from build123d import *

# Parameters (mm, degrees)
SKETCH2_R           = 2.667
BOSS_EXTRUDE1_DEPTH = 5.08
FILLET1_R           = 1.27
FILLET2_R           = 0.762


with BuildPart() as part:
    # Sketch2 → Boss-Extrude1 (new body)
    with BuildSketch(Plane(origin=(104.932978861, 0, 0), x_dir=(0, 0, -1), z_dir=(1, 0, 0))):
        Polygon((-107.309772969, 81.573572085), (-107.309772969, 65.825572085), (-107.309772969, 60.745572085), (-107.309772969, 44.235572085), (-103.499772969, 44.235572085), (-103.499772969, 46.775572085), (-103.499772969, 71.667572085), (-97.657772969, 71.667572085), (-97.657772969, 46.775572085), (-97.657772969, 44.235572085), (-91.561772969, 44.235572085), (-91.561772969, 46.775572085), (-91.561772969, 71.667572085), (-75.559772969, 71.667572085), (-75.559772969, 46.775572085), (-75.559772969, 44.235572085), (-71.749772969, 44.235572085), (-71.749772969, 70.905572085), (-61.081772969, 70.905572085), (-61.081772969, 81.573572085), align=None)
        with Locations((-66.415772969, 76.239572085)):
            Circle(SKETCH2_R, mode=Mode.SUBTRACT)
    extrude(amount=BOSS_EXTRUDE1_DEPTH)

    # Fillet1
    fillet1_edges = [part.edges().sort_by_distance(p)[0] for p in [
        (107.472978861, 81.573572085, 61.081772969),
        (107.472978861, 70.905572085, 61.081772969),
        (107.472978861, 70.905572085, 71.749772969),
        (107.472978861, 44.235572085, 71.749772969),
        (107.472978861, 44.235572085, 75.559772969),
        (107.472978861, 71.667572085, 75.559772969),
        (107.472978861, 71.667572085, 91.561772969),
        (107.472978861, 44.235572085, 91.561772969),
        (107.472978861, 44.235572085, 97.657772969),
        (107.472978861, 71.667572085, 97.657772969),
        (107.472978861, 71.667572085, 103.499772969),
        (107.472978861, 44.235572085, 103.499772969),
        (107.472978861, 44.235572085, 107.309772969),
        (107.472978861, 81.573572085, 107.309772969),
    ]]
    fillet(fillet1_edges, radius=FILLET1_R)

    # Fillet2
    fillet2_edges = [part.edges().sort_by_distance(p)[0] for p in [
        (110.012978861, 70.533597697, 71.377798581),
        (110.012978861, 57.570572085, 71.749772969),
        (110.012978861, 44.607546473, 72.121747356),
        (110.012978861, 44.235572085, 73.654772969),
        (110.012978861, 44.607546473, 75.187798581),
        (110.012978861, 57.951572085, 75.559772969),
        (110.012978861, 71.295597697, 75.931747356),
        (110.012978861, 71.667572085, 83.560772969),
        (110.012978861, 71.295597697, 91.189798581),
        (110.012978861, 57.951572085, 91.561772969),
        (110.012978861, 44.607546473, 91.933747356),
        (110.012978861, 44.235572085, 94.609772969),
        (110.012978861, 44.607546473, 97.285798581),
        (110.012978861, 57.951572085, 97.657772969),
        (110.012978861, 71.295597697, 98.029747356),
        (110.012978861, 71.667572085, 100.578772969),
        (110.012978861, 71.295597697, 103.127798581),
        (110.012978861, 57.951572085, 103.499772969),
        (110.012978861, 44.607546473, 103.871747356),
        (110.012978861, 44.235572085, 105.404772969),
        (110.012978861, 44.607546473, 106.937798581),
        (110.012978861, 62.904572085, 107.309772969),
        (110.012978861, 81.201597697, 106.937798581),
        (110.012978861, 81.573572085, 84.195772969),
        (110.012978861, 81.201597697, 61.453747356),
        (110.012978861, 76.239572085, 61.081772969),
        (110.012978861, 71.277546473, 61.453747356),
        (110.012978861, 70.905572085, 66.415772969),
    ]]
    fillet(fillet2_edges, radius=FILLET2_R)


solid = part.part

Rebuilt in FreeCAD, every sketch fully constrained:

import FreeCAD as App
import Part
import Sketcher
from FreeCAD import Vector
Q = App.Units.Quantity


def edges_at(feature, points):
    """Names of the edges that pass closest to the given points."""
    edges = feature.Shape.Edges
    near = lambda p: min(range(len(edges)), key=lambda i: edges[i].distToShape(Part.Vertex(*p))[0])
    return sorted({f"Edge{near(p) + 1}" for p in points})


def add_polygon(sketch, points):
    """Adds a closed chain of lines whose ends are joined by coincident constraints."""
    first, n = sketch.GeometryCount, len(points)
    for a, b in zip(points, points[1:] + points[:1]):
        sketch.addGeometry(Part.LineSegment(App.Vector(*a, 0), App.Vector(*b, 0)), False)
    for i in range(n):
        sketch.addConstraint(Sketcher.Constraint("Coincident", first + i, 2, first + (i + 1) % n, 1))

doc = App.newDocument("Part")
body = doc.addObject("PartDesign::Body", "Body")

sketch1 = body.newObject("Sketcher::SketchObject", "Sketch")
sketch1.AttachmentSupport = (doc.getObject("YZ_Plane"), [""])
sketch1.MapMode = "FlatFace"
sketch1.AttachmentOffset = App.Placement(Vector(0, 0, 104.932979), App.Rotation())
add_polygon(sketch1, [(81.6, 107.3), (44.2, 107.3), (44.2, 103.5), (71.7, 103.5), (71.7, 97.7), (44.2, 97.7), (44.2, 91.6), (71.7, 91.6), (71.7, 75.6), (44.2, 75.6), (44.2, 71.7), (70.9, 71.7), (70.9, 61.1), (81.6, 61.1)])
sketch1.addGeometry(Part.Circle(Vector(76.2, 66.4, 0), Vector(0, 0, 1), 2.7), False)
sketch1.addConstraint(Sketcher.Constraint("Horizontal", 0))
sketch1.addConstraint(Sketcher.Constraint("Vertical", 1))
sketch1.addConstraint(Sketcher.Constraint("Horizontal", 2))
sketch1.addConstraint(Sketcher.Constraint("Vertical", 3))
sketch1.addConstraint(Sketcher.Constraint("Horizontal", 4))
sketch1.addConstraint(Sketcher.Constraint("Vertical", 5))
sketch1.addConstraint(Sketcher.Constraint("Horizontal", 6))
sketch1.addConstraint(Sketcher.Constraint("Vertical", 7))
sketch1.addConstraint(Sketcher.Constraint("Horizontal", 8))
sketch1.addConstraint(Sketcher.Constraint("Vertical", 9))
sketch1.addConstraint(Sketcher.Constraint("Horizontal", 10))
sketch1.addConstraint(Sketcher.Constraint("Vertical", 11))
sketch1.addConstraint(Sketcher.Constraint("Horizontal", 12))
sketch1.addConstraint(Sketcher.Constraint("Vertical", 13))
sketch1.addConstraint(Sketcher.Constraint("Vertical", 1, 2, 4, 2))
sketch1.addConstraint(Sketcher.Constraint("Vertical", 3, 2, 6, 2))
sketch1.addConstraint(Sketcher.Constraint("Vertical", 5, 2, 8, 2))
sketch1.addConstraint(Sketcher.Constraint("Equal", 1, 9))
sketch1.addConstraint(Sketcher.Constraint("Equal", 12, 11))
sketch1.addConstraint(Sketcher.Constraint("Diameter", 14, Q("0.21 in")))
sketch1.addConstraint(Sketcher.Constraint("DistanceX", 0, 2, 0, 1, Q("1.47 in")))
sketch1.addConstraint(Sketcher.Constraint("DistanceX", 2, 1, 2, 2, Q("1.08 in")))
sketch1.addConstraint(Sketcher.Constraint("DistanceX", 10, 1, 10, 2, Q("1.05 in")))
sketch1.addConstraint(Sketcher.Constraint("DistanceY", 1, 2, 1, 1, Q("0.15 in")))
sketch1.addConstraint(Sketcher.Constraint("DistanceY", 3, 2, 3, 1, Q("0.23 in")))
sketch1.addConstraint(Sketcher.Constraint("DistanceY", 5, 2, 5, 1, Q("0.24 in")))
sketch1.addConstraint(Sketcher.Constraint("DistanceY", 7, 2, 7, 1, Q("0.63 in")))
sketch1.addConstraint(Sketcher.Constraint("DistanceX", 0, 2, 14, 3, Q("1.26 in")))
sketch1.addConstraint(Sketcher.Constraint("DistanceY", 14, 3, 0, 2, Q("1.61 in")))
sketch1.addConstraint(Sketcher.Constraint("DistanceX", -1, 1, 14, 3, 76.239572))
sketch1.addConstraint(Sketcher.Constraint("DistanceY", -1, 1, 14, 3, 66.415773))
pad1 = body.newObject("PartDesign::Pad", "Pad")
pad1.Profile = sketch1
pad1.Length = Q("0.2 in")
doc.recompute()

fillet = body.newObject("PartDesign::Fillet", "Fillet")
fillet.Base = (pad1, edges_at(pad1, [
    (107.473, 81.574, 61.082),
    (107.473, 70.906, 61.082),
    (107.473, 70.906, 71.75),
    (107.473, 44.236, 71.75),
    (107.473, 44.236, 75.56),
    (107.473, 71.668, 75.56),
    (107.473, 71.668, 91.562),
    (107.473, 44.236, 91.562),
    (107.473, 44.236, 97.658),
    (107.473, 71.668, 97.658),
    (107.473, 71.668, 103.5),
    (107.473, 44.236, 103.5),
    (107.473, 44.236, 107.31),
    (107.473, 81.574, 107.31),
]))
fillet.Radius = Q("0.05 in")
doc.recompute()

fillet2 = body.newObject("PartDesign::Fillet", "Fillet001")
fillet2.Base = (fillet, edges_at(fillet, [
    (110.013, 70.534, 71.378),
    (110.013, 57.571, 71.75),
    (110.013, 44.608, 72.122),
    (110.013, 44.236, 73.655),
    (110.013, 44.608, 75.188),
    (110.013, 57.952, 75.56),
    (110.013, 71.296, 75.932),
    (110.013, 71.668, 83.561),
    (110.013, 71.296, 91.19),
    (110.013, 57.952, 91.562),
    (110.013, 44.608, 91.934),
    (110.013, 44.236, 94.61),
    (110.013, 44.608, 97.286),
    (110.013, 57.952, 97.658),
    (110.013, 71.296, 98.03),
    (110.013, 71.668, 100.579),
    (110.013, 71.296, 103.128),
    (110.013, 57.952, 103.5),
    (110.013, 44.608, 103.872),
    (110.013, 44.236, 105.405),
    (110.013, 44.608, 106.938),
    (110.013, 62.905, 107.31),
    (110.013, 81.202, 106.938),
    (110.013, 81.574, 84.196),
    (110.013, 81.202, 61.454),
    (110.013, 76.24, 61.082),
    (110.013, 71.278, 61.454),
    (110.013, 70.906, 66.416),
]))
fillet2.Radius = Q("0.03 in")

doc.recompute()
